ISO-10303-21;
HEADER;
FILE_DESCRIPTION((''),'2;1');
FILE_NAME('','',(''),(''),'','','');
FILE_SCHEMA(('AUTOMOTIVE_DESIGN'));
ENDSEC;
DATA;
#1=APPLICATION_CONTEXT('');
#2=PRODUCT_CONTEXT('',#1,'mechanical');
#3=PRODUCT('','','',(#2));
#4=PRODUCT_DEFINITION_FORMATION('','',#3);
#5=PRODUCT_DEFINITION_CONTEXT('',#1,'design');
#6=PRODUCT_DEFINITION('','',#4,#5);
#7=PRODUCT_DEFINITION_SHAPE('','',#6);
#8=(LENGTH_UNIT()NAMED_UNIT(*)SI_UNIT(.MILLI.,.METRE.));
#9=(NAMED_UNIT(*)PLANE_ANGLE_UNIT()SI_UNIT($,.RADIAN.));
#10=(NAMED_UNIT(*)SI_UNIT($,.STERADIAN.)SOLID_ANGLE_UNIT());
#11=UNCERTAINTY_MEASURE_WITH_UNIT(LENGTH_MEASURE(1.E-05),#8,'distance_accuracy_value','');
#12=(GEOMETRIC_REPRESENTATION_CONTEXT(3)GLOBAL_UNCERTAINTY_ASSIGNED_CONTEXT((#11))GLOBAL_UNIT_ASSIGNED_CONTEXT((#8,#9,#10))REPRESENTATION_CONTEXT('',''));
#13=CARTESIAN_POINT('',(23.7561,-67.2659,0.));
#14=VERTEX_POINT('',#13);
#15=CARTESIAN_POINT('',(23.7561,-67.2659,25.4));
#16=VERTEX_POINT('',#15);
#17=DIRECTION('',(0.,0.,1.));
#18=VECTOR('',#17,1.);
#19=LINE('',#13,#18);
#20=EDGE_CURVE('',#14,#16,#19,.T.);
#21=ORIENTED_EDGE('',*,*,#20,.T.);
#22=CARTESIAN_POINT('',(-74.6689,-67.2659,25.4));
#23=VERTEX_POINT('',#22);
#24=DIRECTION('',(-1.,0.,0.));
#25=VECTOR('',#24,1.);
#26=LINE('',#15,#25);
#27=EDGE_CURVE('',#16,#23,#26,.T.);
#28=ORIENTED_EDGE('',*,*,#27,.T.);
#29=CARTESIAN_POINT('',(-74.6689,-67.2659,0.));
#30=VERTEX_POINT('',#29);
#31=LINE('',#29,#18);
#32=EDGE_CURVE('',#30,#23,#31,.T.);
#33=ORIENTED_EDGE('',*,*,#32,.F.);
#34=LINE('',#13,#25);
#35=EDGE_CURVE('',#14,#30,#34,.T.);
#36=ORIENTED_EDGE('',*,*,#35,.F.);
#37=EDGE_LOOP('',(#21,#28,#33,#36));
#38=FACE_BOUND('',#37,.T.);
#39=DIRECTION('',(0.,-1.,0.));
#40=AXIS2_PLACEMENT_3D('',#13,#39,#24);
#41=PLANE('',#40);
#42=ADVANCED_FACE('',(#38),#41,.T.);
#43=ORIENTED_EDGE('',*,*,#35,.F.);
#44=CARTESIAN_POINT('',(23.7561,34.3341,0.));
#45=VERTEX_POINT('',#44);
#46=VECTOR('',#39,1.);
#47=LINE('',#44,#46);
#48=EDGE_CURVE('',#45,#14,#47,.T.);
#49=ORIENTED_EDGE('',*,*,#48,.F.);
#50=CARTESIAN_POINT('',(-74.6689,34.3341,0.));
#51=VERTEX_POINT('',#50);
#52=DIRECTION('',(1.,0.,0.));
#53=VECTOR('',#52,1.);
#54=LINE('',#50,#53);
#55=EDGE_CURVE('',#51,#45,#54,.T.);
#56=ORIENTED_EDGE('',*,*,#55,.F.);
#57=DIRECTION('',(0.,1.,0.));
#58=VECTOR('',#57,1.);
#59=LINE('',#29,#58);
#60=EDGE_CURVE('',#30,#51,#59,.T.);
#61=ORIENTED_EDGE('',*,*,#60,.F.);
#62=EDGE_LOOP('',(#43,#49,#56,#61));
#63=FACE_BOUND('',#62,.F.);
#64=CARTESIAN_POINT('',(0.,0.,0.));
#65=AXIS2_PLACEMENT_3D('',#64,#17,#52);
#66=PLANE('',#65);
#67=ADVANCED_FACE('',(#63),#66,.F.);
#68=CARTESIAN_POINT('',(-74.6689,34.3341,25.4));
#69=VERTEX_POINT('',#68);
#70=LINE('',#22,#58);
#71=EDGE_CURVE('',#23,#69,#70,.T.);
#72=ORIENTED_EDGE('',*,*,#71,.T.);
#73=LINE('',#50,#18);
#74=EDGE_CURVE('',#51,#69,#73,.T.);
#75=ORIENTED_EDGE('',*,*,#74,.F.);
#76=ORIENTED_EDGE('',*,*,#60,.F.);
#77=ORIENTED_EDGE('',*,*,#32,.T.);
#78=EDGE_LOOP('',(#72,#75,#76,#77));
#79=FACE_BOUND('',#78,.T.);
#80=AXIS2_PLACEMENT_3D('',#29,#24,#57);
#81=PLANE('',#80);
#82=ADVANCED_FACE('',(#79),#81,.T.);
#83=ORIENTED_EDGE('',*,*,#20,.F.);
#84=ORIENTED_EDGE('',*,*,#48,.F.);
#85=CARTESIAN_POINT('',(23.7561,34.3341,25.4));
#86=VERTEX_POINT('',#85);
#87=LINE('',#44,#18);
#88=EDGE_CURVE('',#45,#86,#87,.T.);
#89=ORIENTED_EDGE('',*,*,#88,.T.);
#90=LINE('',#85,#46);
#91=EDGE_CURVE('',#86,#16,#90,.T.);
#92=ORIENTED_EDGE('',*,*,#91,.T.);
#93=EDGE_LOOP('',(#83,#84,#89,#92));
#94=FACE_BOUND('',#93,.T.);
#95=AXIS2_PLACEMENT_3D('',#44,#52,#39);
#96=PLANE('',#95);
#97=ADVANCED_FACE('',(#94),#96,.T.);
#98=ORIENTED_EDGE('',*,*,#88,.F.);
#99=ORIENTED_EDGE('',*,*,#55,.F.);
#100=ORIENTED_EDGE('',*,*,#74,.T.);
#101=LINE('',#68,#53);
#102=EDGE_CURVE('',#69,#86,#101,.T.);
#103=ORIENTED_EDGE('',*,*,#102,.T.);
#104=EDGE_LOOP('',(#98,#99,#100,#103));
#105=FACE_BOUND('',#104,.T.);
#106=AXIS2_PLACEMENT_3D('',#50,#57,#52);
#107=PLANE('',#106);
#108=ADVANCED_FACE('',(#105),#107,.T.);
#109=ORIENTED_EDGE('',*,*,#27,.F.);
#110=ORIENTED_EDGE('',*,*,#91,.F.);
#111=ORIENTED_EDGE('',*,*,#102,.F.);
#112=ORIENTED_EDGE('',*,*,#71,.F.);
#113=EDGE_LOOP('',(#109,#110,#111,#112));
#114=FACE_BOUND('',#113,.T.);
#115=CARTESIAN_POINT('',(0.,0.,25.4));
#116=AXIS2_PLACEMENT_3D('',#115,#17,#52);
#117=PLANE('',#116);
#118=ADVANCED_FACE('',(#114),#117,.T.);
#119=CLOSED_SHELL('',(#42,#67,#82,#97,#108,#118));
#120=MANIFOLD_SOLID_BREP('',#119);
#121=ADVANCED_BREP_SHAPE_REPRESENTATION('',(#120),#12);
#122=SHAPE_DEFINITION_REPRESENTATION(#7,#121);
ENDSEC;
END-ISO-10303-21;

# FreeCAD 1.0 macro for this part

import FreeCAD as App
import Part
import Sketcher
from FreeCAD import Vector
Q = App.Units.Quantity

doc = App.newDocument("Part")
body = doc.addObject("PartDesign::Body", "Body")

sketch1 = body.newObject("Sketcher::SketchObject", "Sketch")
sketch1.AttachmentSupport = (doc.getObject("XY_Plane"), [""])
sketch1.MapMode = "FlatFace"
sketch1.addGeometry([
    Part.LineSegment(Vector(24, 34, 0), Vector(-75, 34, 0)),
    Part.LineSegment(Vector(-75, 34, 0), Vector(-75, -67, 0)),
    Part.LineSegment(Vector(-75, -67, 0), Vector(24, -67, 0)),
    Part.LineSegment(Vector(24, -67, 0), Vector(24, 34, 0)),
], False)
sketch1.addConstraint([
    Sketcher.Constraint("Coincident", 0, 2, 1, 1),
    Sketcher.Constraint("Coincident", 1, 2, 2, 1),
    Sketcher.Constraint("Coincident", 2, 2, 3, 1),
    Sketcher.Constraint("Coincident", 3, 2, 0, 1),
    Sketcher.Constraint("Horizontal", 0),
    Sketcher.Constraint("Vertical", 1),
    Sketcher.Constraint("Horizontal", 2),
    Sketcher.Constraint("Vertical", 3),
    Sketcher.Constraint("DistanceY", 1, 2, 1, 1, Q("4 in")),
    Sketcher.Constraint("DistanceX", 0, 2, 0, 1, Q("3.875 in")),
    Sketcher.Constraint("DistanceX", 0, 2, -1, 1, Q("74.669 mm")),
    Sketcher.Constraint("DistanceY", -1, 1, 0, 2, Q("34.334 mm")),
])
pad1 = body.newObject("PartDesign::Pad", "Pad")
pad1.Profile = sketch1
pad1.Length = Q("1 in")

doc.recompute()
